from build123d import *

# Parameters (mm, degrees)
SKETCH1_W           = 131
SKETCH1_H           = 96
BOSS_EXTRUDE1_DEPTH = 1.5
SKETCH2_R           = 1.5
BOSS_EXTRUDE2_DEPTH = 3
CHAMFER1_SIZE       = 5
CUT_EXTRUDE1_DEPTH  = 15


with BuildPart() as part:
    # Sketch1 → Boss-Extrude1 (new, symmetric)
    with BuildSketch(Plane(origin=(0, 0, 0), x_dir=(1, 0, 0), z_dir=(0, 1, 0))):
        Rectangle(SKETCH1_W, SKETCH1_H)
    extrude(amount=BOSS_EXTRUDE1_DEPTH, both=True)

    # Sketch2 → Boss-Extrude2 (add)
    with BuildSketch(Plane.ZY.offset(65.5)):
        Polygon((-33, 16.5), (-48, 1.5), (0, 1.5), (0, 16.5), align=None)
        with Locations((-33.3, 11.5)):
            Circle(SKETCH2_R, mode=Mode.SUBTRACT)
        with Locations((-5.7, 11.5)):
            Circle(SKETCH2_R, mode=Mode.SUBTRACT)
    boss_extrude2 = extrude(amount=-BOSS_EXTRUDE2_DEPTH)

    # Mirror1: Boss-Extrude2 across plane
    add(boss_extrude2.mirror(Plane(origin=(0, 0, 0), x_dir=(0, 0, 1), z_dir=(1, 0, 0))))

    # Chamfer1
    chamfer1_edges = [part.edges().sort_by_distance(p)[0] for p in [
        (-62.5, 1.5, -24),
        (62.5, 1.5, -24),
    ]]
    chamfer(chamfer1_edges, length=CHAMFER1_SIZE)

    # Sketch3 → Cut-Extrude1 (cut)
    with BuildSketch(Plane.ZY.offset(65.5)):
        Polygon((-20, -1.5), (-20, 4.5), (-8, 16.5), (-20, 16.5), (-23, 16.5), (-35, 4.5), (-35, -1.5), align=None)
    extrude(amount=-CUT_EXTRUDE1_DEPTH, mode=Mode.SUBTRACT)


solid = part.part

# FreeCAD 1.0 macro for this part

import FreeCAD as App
import Part
import Sketcher
from FreeCAD import Vector
Q = App.Units.Quantity


def edges_at(feature, points):
    """Names of the edges that pass closest to the given points."""
    edges = feature.Shape.Edges
    near = lambda p: min(range(len(edges)), key=lambda i: edges[i].distToShape(Part.Vertex(*p))[0])
    return sorted({f"Edge{near(p) + 1}" for p in points})

doc = App.newDocument("Part")
params = doc.addObject("Spreadsheet::Sheet", "Params")
for row, (alias, value) in enumerate([
    ("sketch1_width", "131 mm"),
    ("sketch1_height", "96 mm"),
    ("pad1_length", "3 mm"),
    ("sketch2_diameter", "3 mm"),
    ("sketch2_width", "15 mm"),
    ("sketch2_height", "48 mm"),
    ("sketch2_height2", "33 mm"),
    ("pad2_length", "3 mm"),
    ("chamfer_size", "5 mm"),
    ("sketch3_width", "6 mm"),
    ("sketch3_height", "15 mm"),
    ("pocket1_length", "15 mm"),
], start=1):
    params.set(f"A{row}", alias)
    params.set(f"B{row}", "=" + value)
    params.setAlias(f"B{row}", alias)

body = doc.addObject("PartDesign::Body", "Body")

# Sketch on XZ plane
sketch1 = doc.addObject("Sketcher::SketchObject", "Sketch")
body.addObject(sketch1)
sketch1.AttachmentSupport = (doc.XZ_Plane, [""])
sketch1.MapMode = "FlatFace"
sketch1.addGeometry([
    Part.LineSegment(Vector(-66, -48, 0), Vector(-66, 48, 0)),
    Part.LineSegment(Vector(-66, 48, 0), Vector(66, 48, 0)),
    Part.LineSegment(Vector(66, 48, 0), Vector(66, -48, 0)),
    Part.LineSegment(Vector(66, -48, 0), Vector(-66, -48, 0)),
], False)
sketch1.addConstraint([
    Sketcher.Constraint("Coincident", 0, 2, 1, 1),
    Sketcher.Constraint("Coincident", 1, 2, 2, 1),
    Sketcher.Constraint("Coincident", 2, 2, 3, 1),
    Sketcher.Constraint("Coincident", 3, 2, 0, 1),
    Sketcher.Constraint("Vertical", 0),
    Sketcher.Constraint("Horizontal", 1),
    Sketcher.Constraint("Vertical", 2),
    Sketcher.Constraint("Horizontal", 3),
    Sketcher.Constraint("Symmetric", 0, 2, 2, 2, -1, 1),
    Sketcher.Constraint("DistanceX", 1, 1, 1, 2, Q("131 mm")),
    Sketcher.Constraint("DistanceY", 0, 1, 0, 2, Q("96 mm")),
])
sketch1.setExpression("Constraints[9]", "Params.sketch1_width")
sketch1.setExpression("Constraints[10]", "Params.sketch1_height")
pad1 = doc.addObject("PartDesign::Pad", "Pad")
body.addObject(pad1)
pad1.Profile = sketch1
pad1.setExpression("Length", "Params.pad1_length")
pad1.Midplane = True

# Sketch on YZ plane
sketch2 = doc.addObject("Sketcher::SketchObject", "Sketch001")
body.addObject(sketch2)
sketch2.AttachmentSupport = (doc.YZ_Plane, [""])
sketch2.MapMode = "FlatFace"
sketch2.AttachmentOffset = App.Placement(Vector(0, 0, -65.5), App.Rotation())
sketch2.addGeometry([
    Part.LineSegment(Vector(16.5, -33, 0), Vector(1.5, -48, 0)),  # 0
    Part.LineSegment(Vector(1.5, -48, 0), Vector(1.5, 0, 0)),  # 1
    Part.LineSegment(Vector(1.5, 0, 0), Vector(16.5, 0, 0)),  # 2
    Part.LineSegment(Vector(16.5, 0, 0), Vector(16.5, -33, 0)),  # 3
    Part.Circle(Vector(11.5, -33.3, 0), Vector(0, 0, 1), 1.5),  # 4
    Part.Circle(Vector(11.5, -5.7, 0), Vector(0, 0, 1), 1.5),  # 5
], False)
sketch2.addConstraint([
    Sketcher.Constraint("Coincident", 0, 2, 1, 1),
    Sketcher.Constraint("Coincident", 1, 2, 2, 1),
    Sketcher.Constraint("Coincident", 2, 2, 3, 1),
    Sketcher.Constraint("Coincident", 3, 2, 0, 1),
    Sketcher.Constraint("Vertical", 1),
    Sketcher.Constraint("Horizontal", 2),
    Sketcher.Constraint("Vertical", 3),
    Sketcher.Constraint("Equal", 4, 5),
    Sketcher.Constraint("PointOnObject", 1, 2, -1),
    Sketcher.Constraint("Vertical", 4, 3, 5, 3),
    Sketcher.Constraint("Diameter", 4, Q("3 mm")),
    Sketcher.Constraint("DistanceX", 2, 1, 2, 2, Q("15 mm")),
    Sketcher.Constraint("DistanceY", 1, 1, 1, 2, Q("48 mm")),
    Sketcher.Constraint("DistanceY", 3, 2, 3, 1, Q("33 mm")),
    Sketcher.Constraint("DistanceX", 0, 2, 4, 3, Q("10 mm")),
    Sketcher.Constraint("DistanceX", -1, 1, 4, 3, Q("11.5 mm")),
    Sketcher.Constraint("DistanceY", 4, 3, -1, 1, Q("33.3 mm")),
    Sketcher.Constraint("DistanceY", 5, 3, -1, 1, Q("5.7 mm")),
])
sketch2.setExpression("Constraints[10]", "Params.sketch2_diameter")
sketch2.setExpression("Constraints[11]", "Params.sketch2_width")
sketch2.setExpression("Constraints[12]", "Params.sketch2_height")
sketch2.setExpression("Constraints[13]", "Params.sketch2_height2")
pad2 = doc.addObject("PartDesign::Pad", "Pad001")
body.addObject(pad2)
pad2.Profile = sketch2
pad2.setExpression("Length", "Params.pad2_length")
doc.recompute()

mirrored = doc.addObject("PartDesign::Mirrored", "Mirrored")
body.addObject(mirrored)
mirrored.Originals = [pad2]
mirrored.MirrorPlane = (doc.YZ_Plane, [""])
body.Tip = mirrored
doc.recompute()

chamfer = doc.addObject("PartDesign::Chamfer", "Chamfer")
body.addObject(chamfer)
chamfer.Base = (mirrored, edges_at(mirrored, [(-62.5, 1.5, -24), (62.5, 1.5, -24)]))
chamfer.setExpression("Size", "Params.chamfer_size")

# Sketch on YZ plane
sketch3 = doc.addObject("Sketcher::SketchObject", "Sketch002")
body.addObject(sketch3)
sketch3.AttachmentSupport = (doc.YZ_Plane, [""])
sketch3.MapMode = "FlatFace"
sketch3.AttachmentOffset = App.Placement(Vector(0, 0, -65.5), App.Rotation())
sketch3.addGeometry([
    Part.LineSegment(Vector(-2, -20, 0), Vector(4, -20, 0)),  # 0
    Part.LineSegment(Vector(4, -20, 0), Vector(16, -8, 0)),  # 1
    Part.LineSegment(Vector(16, -8, 0), Vector(16, -23, 0)),  # 2
    Part.LineSegment(Vector(16, -23, 0), Vector(4, -35, 0)),  # 3
    Part.LineSegment(Vector(4, -35, 0), Vector(-2, -35, 0)),  # 4
    Part.LineSegment(Vector(-2, -35, 0), Vector(-2, -20, 0)),  # 5
], False)
sketch3.addConstraint([
    Sketcher.Constraint("Coincident", 0, 2, 1, 1),
    Sketcher.Constraint("Coincident", 1, 2, 2, 1),
    Sketcher.Constraint("Coincident", 2, 2, 3, 1),
    Sketcher.Constraint("Coincident", 3, 2, 4, 1),
    Sketcher.Constraint("Coincident", 4, 2, 5, 1),
    Sketcher.Constraint("Coincident", 5, 2, 0, 1),
    Sketcher.Constraint("Horizontal", 0),
    Sketcher.Constraint("Vertical", 2),
    Sketcher.Constraint("Horizontal", 4),
    Sketcher.Constraint("Vertical", 5),
    Sketcher.Constraint("Parallel", 1, 3),
    Sketcher.Constraint("Vertical", 0, 2, 3, 2),
    Sketcher.Constraint("DistanceX", 0, 1, 0, 2, Q("6 mm")),
    Sketcher.Constraint("DistanceY", 2, 2, 2, 1, Q("15 mm")),
    Sketcher.Constraint("Angle", 1, Q("45 deg")),
    Sketcher.Constraint("DistanceY", 0, 2, -1, 1, Q("20 mm")),
    Sketcher.Constraint("DistanceY", 1, 2, -1, 1, Q("8 mm")),
    Sketcher.Constraint("DistanceX", -1, 1, 0, 2, Q("4.5 mm")),
])
sketch3.setExpression("Constraints[12]", "Params.sketch3_width")
sketch3.setExpression("Constraints[13]", "Params.sketch3_height")
pocket1 = doc.addObject("PartDesign::Pocket", "Pocket")
body.addObject(pocket1)
pocket1.Profile = sketch3
pocket1.setExpression("Length", "Params.pocket1_length")
pocket1.Reversed = True

doc.recompute()
